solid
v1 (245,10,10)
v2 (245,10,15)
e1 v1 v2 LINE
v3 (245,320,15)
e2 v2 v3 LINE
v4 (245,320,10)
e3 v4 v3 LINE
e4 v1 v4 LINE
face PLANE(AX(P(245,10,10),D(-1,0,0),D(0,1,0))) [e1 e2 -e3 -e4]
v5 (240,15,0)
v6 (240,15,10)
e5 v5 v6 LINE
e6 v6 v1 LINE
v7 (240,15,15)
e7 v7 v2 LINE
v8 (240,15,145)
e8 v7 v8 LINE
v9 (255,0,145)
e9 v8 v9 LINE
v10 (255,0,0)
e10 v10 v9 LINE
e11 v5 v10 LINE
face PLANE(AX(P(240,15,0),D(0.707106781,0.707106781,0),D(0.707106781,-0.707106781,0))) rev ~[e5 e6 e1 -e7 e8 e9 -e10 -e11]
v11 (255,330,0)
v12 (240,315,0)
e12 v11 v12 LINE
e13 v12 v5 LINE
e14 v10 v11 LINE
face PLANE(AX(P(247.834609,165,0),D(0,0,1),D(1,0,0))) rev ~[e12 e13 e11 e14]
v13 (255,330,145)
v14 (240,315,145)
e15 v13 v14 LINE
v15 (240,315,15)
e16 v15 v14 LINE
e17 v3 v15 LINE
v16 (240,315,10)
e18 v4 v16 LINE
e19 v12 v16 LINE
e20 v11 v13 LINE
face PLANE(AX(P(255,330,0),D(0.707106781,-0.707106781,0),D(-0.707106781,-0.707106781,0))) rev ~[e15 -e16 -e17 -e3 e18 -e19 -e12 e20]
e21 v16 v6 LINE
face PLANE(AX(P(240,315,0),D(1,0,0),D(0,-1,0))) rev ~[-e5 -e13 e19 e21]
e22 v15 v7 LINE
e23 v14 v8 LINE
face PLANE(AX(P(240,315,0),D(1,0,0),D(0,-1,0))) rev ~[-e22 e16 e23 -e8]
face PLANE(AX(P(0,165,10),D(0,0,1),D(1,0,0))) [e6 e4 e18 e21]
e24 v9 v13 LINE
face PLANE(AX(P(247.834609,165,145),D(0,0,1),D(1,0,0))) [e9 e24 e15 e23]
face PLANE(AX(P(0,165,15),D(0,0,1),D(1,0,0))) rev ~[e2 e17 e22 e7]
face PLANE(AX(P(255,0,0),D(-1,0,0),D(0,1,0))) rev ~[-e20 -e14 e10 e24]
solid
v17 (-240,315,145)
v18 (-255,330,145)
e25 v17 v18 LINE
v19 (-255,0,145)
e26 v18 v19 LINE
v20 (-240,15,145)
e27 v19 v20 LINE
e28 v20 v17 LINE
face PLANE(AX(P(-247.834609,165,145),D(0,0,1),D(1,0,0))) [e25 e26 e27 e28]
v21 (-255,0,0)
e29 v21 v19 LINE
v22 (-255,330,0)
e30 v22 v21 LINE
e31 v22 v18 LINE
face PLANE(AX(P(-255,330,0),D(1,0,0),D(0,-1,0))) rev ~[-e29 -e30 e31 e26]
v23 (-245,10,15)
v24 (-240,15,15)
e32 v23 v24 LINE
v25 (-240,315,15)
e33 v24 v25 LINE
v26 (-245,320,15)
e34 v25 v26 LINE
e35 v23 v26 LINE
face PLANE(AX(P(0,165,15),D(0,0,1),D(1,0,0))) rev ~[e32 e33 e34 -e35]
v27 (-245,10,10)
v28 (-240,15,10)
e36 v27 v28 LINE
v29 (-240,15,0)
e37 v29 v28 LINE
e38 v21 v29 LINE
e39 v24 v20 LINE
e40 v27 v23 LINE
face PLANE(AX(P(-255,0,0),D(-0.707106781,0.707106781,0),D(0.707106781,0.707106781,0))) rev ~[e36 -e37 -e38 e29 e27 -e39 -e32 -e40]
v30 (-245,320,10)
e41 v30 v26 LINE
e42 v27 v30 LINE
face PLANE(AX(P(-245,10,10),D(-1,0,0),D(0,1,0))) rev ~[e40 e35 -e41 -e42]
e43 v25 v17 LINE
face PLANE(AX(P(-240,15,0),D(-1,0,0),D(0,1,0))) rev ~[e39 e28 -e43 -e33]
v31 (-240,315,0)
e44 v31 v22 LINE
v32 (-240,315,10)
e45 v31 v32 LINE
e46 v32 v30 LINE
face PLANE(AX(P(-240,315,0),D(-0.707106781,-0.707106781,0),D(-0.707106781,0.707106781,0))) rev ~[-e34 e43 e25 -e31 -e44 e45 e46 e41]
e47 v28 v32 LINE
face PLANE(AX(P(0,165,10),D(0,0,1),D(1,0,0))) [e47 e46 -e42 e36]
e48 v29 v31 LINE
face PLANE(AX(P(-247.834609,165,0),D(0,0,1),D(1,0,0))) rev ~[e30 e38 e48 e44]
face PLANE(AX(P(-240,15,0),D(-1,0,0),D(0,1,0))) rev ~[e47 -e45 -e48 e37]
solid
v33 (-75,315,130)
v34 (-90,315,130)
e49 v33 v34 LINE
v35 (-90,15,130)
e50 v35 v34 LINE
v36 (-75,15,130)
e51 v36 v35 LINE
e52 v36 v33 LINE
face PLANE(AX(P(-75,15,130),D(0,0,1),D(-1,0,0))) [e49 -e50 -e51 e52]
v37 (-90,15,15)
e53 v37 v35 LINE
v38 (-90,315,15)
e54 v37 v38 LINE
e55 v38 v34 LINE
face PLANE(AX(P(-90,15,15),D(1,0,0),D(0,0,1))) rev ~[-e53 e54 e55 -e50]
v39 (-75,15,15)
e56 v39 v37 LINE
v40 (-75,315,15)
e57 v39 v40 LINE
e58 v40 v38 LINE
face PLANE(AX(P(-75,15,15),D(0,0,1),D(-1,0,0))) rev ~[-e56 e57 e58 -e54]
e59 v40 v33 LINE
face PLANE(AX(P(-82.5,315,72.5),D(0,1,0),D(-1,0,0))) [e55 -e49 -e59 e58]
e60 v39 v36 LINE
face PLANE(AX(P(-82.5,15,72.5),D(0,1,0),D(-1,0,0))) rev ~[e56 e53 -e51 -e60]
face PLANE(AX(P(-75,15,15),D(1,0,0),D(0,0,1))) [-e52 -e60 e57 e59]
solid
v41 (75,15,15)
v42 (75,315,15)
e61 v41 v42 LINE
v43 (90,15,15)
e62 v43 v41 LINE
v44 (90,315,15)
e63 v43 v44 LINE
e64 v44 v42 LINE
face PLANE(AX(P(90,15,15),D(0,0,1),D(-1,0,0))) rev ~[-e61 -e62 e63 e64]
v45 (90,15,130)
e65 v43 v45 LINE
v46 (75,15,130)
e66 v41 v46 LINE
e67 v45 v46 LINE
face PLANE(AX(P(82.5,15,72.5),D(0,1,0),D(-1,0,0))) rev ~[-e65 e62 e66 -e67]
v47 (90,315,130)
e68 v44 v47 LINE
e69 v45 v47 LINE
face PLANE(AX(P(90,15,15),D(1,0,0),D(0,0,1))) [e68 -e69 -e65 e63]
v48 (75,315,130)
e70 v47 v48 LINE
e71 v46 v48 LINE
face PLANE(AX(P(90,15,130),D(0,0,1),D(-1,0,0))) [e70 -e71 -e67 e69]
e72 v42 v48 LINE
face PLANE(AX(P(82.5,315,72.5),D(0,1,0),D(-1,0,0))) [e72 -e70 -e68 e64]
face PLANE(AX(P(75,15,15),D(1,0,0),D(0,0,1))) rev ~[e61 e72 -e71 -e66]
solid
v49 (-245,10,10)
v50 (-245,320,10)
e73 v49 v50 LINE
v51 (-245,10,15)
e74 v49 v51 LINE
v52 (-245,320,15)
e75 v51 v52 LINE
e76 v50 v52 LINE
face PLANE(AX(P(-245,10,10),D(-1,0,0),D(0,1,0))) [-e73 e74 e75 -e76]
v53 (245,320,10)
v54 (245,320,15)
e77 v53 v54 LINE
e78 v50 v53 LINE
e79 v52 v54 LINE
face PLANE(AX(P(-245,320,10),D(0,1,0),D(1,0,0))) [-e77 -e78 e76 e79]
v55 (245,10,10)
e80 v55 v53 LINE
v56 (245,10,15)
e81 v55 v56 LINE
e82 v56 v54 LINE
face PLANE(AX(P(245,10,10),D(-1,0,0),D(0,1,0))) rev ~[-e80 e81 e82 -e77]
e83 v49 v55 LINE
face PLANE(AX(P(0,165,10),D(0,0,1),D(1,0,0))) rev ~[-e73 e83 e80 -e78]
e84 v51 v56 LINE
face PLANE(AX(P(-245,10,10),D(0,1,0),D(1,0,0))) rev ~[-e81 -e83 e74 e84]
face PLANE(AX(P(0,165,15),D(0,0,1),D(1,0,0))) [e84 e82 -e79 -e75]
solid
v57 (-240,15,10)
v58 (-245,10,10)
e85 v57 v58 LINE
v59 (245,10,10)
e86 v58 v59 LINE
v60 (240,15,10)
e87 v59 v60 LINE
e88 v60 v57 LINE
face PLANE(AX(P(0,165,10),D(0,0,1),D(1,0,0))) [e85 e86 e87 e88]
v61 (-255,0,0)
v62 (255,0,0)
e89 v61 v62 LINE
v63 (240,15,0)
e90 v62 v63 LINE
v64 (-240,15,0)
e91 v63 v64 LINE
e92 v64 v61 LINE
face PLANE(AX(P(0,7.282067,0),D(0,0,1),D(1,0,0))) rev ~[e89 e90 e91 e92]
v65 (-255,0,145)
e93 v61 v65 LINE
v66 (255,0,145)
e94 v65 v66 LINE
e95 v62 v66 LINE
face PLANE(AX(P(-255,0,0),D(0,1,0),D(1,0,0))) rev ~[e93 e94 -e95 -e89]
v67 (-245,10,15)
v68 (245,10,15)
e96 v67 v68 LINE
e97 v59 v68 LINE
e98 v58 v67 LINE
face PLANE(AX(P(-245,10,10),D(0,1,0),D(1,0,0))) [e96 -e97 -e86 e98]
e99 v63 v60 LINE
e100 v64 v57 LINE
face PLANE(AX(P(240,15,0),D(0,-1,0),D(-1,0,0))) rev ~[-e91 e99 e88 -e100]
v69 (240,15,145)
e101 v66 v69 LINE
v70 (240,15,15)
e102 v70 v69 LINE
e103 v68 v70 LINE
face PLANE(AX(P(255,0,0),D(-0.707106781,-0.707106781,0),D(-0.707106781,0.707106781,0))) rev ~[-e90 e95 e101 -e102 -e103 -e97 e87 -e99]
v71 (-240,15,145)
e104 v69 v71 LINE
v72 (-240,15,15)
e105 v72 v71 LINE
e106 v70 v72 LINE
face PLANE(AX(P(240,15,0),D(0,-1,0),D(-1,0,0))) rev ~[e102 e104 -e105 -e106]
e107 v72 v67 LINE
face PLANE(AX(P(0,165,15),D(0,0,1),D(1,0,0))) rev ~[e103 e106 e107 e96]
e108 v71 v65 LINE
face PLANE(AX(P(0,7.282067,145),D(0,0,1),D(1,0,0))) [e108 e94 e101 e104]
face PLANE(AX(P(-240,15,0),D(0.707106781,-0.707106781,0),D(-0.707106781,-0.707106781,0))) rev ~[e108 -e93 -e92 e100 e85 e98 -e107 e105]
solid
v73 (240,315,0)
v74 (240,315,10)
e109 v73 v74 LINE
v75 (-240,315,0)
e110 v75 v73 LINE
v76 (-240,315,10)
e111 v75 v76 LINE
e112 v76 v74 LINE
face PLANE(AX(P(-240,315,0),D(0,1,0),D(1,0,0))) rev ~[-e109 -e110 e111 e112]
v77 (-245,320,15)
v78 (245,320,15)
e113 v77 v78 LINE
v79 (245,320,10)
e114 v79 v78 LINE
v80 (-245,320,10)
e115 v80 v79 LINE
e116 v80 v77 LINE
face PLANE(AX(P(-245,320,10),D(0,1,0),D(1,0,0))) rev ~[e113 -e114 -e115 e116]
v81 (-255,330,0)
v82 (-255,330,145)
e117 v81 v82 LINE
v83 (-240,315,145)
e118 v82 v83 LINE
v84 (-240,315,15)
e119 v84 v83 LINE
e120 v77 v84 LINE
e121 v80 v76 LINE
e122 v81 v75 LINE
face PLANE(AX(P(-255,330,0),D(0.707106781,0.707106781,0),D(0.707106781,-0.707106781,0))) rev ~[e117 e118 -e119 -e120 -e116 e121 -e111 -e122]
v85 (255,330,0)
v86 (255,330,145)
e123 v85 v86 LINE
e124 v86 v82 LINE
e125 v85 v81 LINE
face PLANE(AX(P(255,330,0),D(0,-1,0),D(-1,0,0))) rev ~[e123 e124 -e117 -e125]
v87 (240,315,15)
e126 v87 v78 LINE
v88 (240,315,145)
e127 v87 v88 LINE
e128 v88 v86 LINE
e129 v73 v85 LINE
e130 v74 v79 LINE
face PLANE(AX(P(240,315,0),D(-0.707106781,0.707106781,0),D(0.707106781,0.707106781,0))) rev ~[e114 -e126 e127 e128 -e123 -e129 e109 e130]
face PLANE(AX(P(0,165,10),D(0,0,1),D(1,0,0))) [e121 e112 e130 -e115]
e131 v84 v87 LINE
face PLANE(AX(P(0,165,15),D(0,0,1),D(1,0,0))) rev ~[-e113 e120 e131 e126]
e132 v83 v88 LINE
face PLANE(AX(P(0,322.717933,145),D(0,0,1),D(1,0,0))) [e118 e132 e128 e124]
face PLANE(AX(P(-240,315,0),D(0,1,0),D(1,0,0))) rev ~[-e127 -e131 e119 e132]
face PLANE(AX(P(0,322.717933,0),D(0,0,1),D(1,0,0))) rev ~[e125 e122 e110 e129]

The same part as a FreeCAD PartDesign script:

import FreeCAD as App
import Part
import Sketcher
from FreeCAD import Vector


def add_polygon(sketch, points):
    """Adds a closed chain of lines whose ends are joined by coincident constraints."""
    first, n = sketch.GeometryCount, len(points)
    for a, b in zip(points, points[1:] + points[:1]):
        sketch.addGeometry(Part.LineSegment(App.Vector(*a, 0), App.Vector(*b, 0)), False)
    for i in range(n):
        sketch.addConstraint(Sketcher.Constraint("Coincident", first + i, 2, first + (i + 1) % n, 1))

doc = App.newDocument("Part")
params = doc.addObject("Spreadsheet::Sheet", "Params")
for row, (alias, value) in enumerate([
    ("sketch1_width", "490 mm"),
    ("sketch1_height", "310 mm"),
    ("pad1_length", "5 mm"),
    ("sketch2_width", "480 mm"),
    ("sketch2_width2", "510 mm"),
    ("pad2_length", "145 mm"),
    ("sketch3_width", "480 mm"),
    ("sketch3_width2", "510 mm"),
    ("pad3_length", "145 mm"),
    ("sketch4_height", "300 mm"),
    ("sketch4_height2", "330 mm"),
    ("pad4_length", "145 mm"),
    ("sketch5_height", "300 mm"),
    ("sketch5_height2", "330 mm"),
    ("pad5_length", "145 mm"),
    ("sketch6_width", "15 mm"),
    ("sketch6_height", "115 mm"),
    ("pad6_length", "300 mm"),
    ("sketch7_width", "15 mm"),
    ("sketch7_height", "115 mm"),
    ("pad7_length", "300 mm"),
], start=1):
    params.set(f"A{row}", alias)
    params.set(f"B{row}", "=" + value)
    params.setAlias(f"B{row}", alias)

body = doc.addObject("PartDesign::Body", "Body")

# Sketch on XY plane
sketch1 = body.newObject("Sketcher::SketchObject", "Sketch")
sketch1.AttachmentSupport = (doc.getObject("XY_Plane"), [""])
sketch1.MapMode = "FlatFace"
sketch1.AttachmentOffset = App.Placement(Vector(0, 0, 10), App.Rotation())
add_polygon(sketch1, [(-245, 320), (-245, 10), (245, 10), (245, 320)])  # lines 0-3
sketch1.addConstraint(Sketcher.Constraint("Vertical", 0))
sketch1.addConstraint(Sketcher.Constraint("Horizontal", 1))
sketch1.addConstraint(Sketcher.Constraint("Vertical", 2))
sketch1.addConstraint(Sketcher.Constraint("Horizontal", 3))
sketch1.addConstraint(Sketcher.Constraint("DistanceX", 1, 1, 1, 2, 490.0))
sketch1.addConstraint(Sketcher.Constraint("DistanceY", 0, 2, 0, 1, 310.0))
sketch1.addConstraint(Sketcher.Constraint("DistanceX", 0, 2, -1, 1, 245.0))
sketch1.addConstraint(Sketcher.Constraint("DistanceY", -1, 1, 0, 2, 10.0))
sketch1.setExpression("Constraints[8]", "Params.sketch1_width")
sketch1.setExpression("Constraints[9]", "Params.sketch1_height")
pad1 = body.newObject("PartDesign::Pad", "Pad")
pad1.Profile = sketch1
pad1.setExpression("Length", "Params.pad1_length")
body2 = doc.addObject("PartDesign::Body", "Body001")

# Sketch on XY plane
sketch2 = body2.newObject("Sketcher::SketchObject", "Sketch001")
sketch2.AttachmentSupport = (doc.getObject("XY_Plane001"), [""])
sketch2.MapMode = "FlatFace"
add_polygon(sketch2, [(240, 15), (-240, 15), (-255, 0), (255, 0)])  # lines 0-3
sketch2.addConstraint(Sketcher.Constraint("Horizontal", 0))
sketch2.addConstraint(Sketcher.Constraint("Horizontal", 2))
sketch2.addConstraint(Sketcher.Constraint("Symmetric", 1, 2, 2, 2, -1, 1))
sketch2.addConstraint(Sketcher.Constraint("Perpendicular", 1, 3))
sketch2.addConstraint(Sketcher.Constraint("Equal", 1, 3))
sketch2.addConstraint(Sketcher.Constraint("DistanceX", 0, 2, 0, 1, 480.0))
sketch2.addConstraint(Sketcher.Constraint("DistanceX", 2, 1, 2, 2, 510.0))
sketch2.setExpression("Constraints[9]", "Params.sketch2_width")
sketch2.setExpression("Constraints[10]", "Params.sketch2_width2")
pad2 = body2.newObject("PartDesign::Pad", "Pad001")
pad2.Profile = sketch2
pad2.setExpression("Length", "Params.pad2_length")
doc.recompute()

body3 = doc.addObject("PartDesign::Body", "Body002")
body3.BaseFeature = body
boolean = body2.newObject("PartDesign::Boolean", "Boolean")
boolean.Type = "Cut"
boolean.addObjects([body3])
doc.recompute()
body4 = doc.addObject("PartDesign::Body", "Body003")

# Sketch on XY plane
sketch3 = body4.newObject("Sketcher::SketchObject", "Sketch002")
sketch3.AttachmentSupport = (doc.getObject("XY_Plane003"), [""])
sketch3.MapMode = "FlatFace"
add_polygon(sketch3, [(-255, 330), (-240, 315), (240, 315), (255, 330)])  # lines 0-3
sketch3.addConstraint(Sketcher.Constraint("Horizontal", 1))
sketch3.addConstraint(Sketcher.Constraint("Horizontal", 3))
sketch3.addConstraint(Sketcher.Constraint("Perpendicular", 0, 2))
sketch3.addConstraint(Sketcher.Constraint("Equal", 0, 2))
sketch3.addConstraint(Sketcher.Constraint("DistanceX", 1, 1, 1, 2, 480.0))
sketch3.addConstraint(Sketcher.Constraint("DistanceX", 3, 2, 3, 1, 510.0))
sketch3.addConstraint(Sketcher.Constraint("DistanceX", 0, 2, -1, 1, 240.0))
sketch3.addConstraint(Sketcher.Constraint("DistanceY", -1, 1, 0, 2, 315.0))
sketch3.setExpression("Constraints[8]", "Params.sketch3_width")
sketch3.setExpression("Constraints[9]", "Params.sketch3_width2")
pad3 = body4.newObject("PartDesign::Pad", "Pad002")
pad3.Profile = sketch3
pad3.setExpression("Length", "Params.pad3_length")
doc.recompute()

body5 = doc.addObject("PartDesign::Body", "Body004")
body5.BaseFeature = body
boolean2 = body4.newObject("PartDesign::Boolean", "Boolean001")
boolean2.Type = "Cut"
boolean2.addObjects([body5])
doc.recompute()
body6 = doc.addObject("PartDesign::Body", "Body005")

# Sketch on XY plane
sketch4 = body6.newObject("Sketcher::SketchObject", "Sketch003")
sketch4.AttachmentSupport = (doc.getObject("XY_Plane005"), [""])
sketch4.MapMode = "FlatFace"
add_polygon(sketch4, [(-255, 0), (-240, 15), (-240, 315), (-255, 330)])  # lines 0-3
sketch4.addConstraint(Sketcher.Constraint("Vertical", 1))
sketch4.addConstraint(Sketcher.Constraint("Vertical", 3))
sketch4.addConstraint(Sketcher.Constraint("PointOnObject", 3, 2, -1))
sketch4.addConstraint(Sketcher.Constraint("Perpendicular", 0, 2))
sketch4.addConstraint(Sketcher.Constraint("Equal", 0, 2))
sketch4.addConstraint(Sketcher.Constraint("DistanceY", 1, 1, 1, 2, 300.0))
sketch4.addConstraint(Sketcher.Constraint("DistanceY", 3, 2, 3, 1, 330.0))
sketch4.addConstraint(Sketcher.Constraint("DistanceX", 0, 2, -1, 1, 240.0))
sketch4.setExpression("Constraints[9]", "Params.sketch4_height")
sketch4.setExpression("Constraints[10]", "Params.sketch4_height2")
pad4 = body6.newObject("PartDesign::Pad", "Pad003")
pad4.Profile = sketch4
pad4.setExpression("Length", "Params.pad4_length")
doc.recompute()

body7 = doc.addObject("PartDesign::Body", "Body006")
body7.BaseFeature = body
boolean3 = body6.newObject("PartDesign::Boolean", "Boolean002")
boolean3.Type = "Cut"
boolean3.addObjects([body7])
doc.recompute()
body8 = doc.addObject("PartDesign::Body", "Body007")

# Sketch on XY plane
sketch5 = body8.newObject("Sketcher::SketchObject", "Sketch004")
sketch5.AttachmentSupport = (doc.getObject("XY_Plane007"), [""])
sketch5.MapMode = "FlatFace"
add_polygon(sketch5, [(240, 315), (240, 15), (255, 0), (255, 330)])  # lines 0-3
sketch5.addConstraint(Sketcher.Constraint("Vertical", 0))
sketch5.addConstraint(Sketcher.Constraint("Vertical", 2))
sketch5.addConstraint(Sketcher.Constraint("PointOnObject", 1, 2, -1))
sketch5.addConstraint(Sketcher.Constraint("Perpendicular", 1, 3))
sketch5.addConstraint(Sketcher.Constraint("Equal", 1, 3))
sketch5.addConstraint(Sketcher.Constraint("DistanceY", 0, 2, 0, 1, 300.0))
sketch5.addConstraint(Sketcher.Constraint("DistanceY", 2, 1, 2, 2, 330.0))
sketch5.addConstraint(Sketcher.Constraint("DistanceX", -1, 1, 0, 2, 240.0))
sketch5.setExpression("Constraints[9]", "Params.sketch5_height")
sketch5.setExpression("Constraints[10]", "Params.sketch5_height2")
pad5 = body8.newObject("PartDesign::Pad", "Pad004")
pad5.Profile = sketch5
pad5.setExpression("Length", "Params.pad5_length")
doc.recompute()

body9 = doc.addObject("PartDesign::Body", "Body008")
body9.BaseFeature = body
boolean4 = body8.newObject("PartDesign::Boolean", "Boolean003")
boolean4.Type = "Cut"
boolean4.addObjects([body9])
doc.recompute()
body10 = doc.addObject("PartDesign::Body", "Body009")

# Sketch on XZ plane
sketch6 = body10.newObject("Sketcher::SketchObject", "Sketch005")
sketch6.AttachmentSupport = (doc.getObject("XZ_Plane009"), [""])
sketch6.MapMode = "FlatFace"
sketch6.AttachmentOffset = App.Placement(Vector(0, 0, -15), App.Rotation())
add_polygon(sketch6, [(90, 130), (90, 15), (75, 15), (75, 130)])  # lines 0-3
sketch6.addConstraint(Sketcher.Constraint("Vertical", 0))
sketch6.addConstraint(Sketcher.Constraint("Horizontal", 1))
sketch6.addConstraint(Sketcher.Constraint("Vertical", 2))
sketch6.addConstraint(Sketcher.Constraint("Horizontal", 3))
sketch6.addConstraint(Sketcher.Constraint("DistanceX", 1, 2, 1, 1, 15.0))
sketch6.addConstraint(Sketcher.Constraint("DistanceY", 0, 2, 0, 1, 115.0))
sketch6.addConstraint(Sketcher.Constraint("DistanceX", -1, 1, 0, 2, 90.0))
sketch6.addConstraint(Sketcher.Constraint("DistanceY", -1, 1, 0, 2, 15.0))
sketch6.setExpression("Constraints[8]", "Params.sketch6_width")
sketch6.setExpression("Constraints[9]", "Params.sketch6_height")
pad6 = body10.newObject("PartDesign::Pad", "Pad005")
pad6.Profile = sketch6
pad6.setExpression("Length", "Params.pad6_length")
pad6.Reversed = True
body11 = doc.addObject("PartDesign::Body", "Body010")

# Sketch on XZ plane
sketch7 = body11.newObject("Sketcher::SketchObject", "Sketch006")
sketch7.AttachmentSupport = (doc.getObject("XZ_Plane010"), [""])
sketch7.MapMode = "FlatFace"
sketch7.AttachmentOffset = App.Placement(Vector(0, 0, -15), App.Rotation())
add_polygon(sketch7, [(-75, 130), (-75, 15), (-90, 15), (-90, 130)])  # lines 0-3
sketch7.addConstraint(Sketcher.Constraint("Vertical", 0))
sketch7.addConstraint(Sketcher.Constraint("Horizontal", 1))
sketch7.addConstraint(Sketcher.Constraint("Vertical", 2))
sketch7.addConstraint(Sketcher.Constraint("Horizontal", 3))
sketch7.addConstraint(Sketcher.Constraint("DistanceX", 1, 2, 1, 1, 15.0))
sketch7.addConstraint(Sketcher.Constraint("DistanceY", 0, 2, 0, 1, 115.0))
sketch7.addConstraint(Sketcher.Constraint("DistanceX", 0, 2, -1, 1, 75.0))
sketch7.addConstraint(Sketcher.Constraint("DistanceY", -1, 1, 0, 2, 15.0))
sketch7.setExpression("Constraints[8]", "Params.sketch7_width")
sketch7.setExpression("Constraints[9]", "Params.sketch7_height")
pad7 = body11.newObject("PartDesign::Pad", "Pad006")
pad7.Profile = sketch7
pad7.setExpression("Length", "Params.pad7_length")
pad7.Reversed = True

doc.recompute()
